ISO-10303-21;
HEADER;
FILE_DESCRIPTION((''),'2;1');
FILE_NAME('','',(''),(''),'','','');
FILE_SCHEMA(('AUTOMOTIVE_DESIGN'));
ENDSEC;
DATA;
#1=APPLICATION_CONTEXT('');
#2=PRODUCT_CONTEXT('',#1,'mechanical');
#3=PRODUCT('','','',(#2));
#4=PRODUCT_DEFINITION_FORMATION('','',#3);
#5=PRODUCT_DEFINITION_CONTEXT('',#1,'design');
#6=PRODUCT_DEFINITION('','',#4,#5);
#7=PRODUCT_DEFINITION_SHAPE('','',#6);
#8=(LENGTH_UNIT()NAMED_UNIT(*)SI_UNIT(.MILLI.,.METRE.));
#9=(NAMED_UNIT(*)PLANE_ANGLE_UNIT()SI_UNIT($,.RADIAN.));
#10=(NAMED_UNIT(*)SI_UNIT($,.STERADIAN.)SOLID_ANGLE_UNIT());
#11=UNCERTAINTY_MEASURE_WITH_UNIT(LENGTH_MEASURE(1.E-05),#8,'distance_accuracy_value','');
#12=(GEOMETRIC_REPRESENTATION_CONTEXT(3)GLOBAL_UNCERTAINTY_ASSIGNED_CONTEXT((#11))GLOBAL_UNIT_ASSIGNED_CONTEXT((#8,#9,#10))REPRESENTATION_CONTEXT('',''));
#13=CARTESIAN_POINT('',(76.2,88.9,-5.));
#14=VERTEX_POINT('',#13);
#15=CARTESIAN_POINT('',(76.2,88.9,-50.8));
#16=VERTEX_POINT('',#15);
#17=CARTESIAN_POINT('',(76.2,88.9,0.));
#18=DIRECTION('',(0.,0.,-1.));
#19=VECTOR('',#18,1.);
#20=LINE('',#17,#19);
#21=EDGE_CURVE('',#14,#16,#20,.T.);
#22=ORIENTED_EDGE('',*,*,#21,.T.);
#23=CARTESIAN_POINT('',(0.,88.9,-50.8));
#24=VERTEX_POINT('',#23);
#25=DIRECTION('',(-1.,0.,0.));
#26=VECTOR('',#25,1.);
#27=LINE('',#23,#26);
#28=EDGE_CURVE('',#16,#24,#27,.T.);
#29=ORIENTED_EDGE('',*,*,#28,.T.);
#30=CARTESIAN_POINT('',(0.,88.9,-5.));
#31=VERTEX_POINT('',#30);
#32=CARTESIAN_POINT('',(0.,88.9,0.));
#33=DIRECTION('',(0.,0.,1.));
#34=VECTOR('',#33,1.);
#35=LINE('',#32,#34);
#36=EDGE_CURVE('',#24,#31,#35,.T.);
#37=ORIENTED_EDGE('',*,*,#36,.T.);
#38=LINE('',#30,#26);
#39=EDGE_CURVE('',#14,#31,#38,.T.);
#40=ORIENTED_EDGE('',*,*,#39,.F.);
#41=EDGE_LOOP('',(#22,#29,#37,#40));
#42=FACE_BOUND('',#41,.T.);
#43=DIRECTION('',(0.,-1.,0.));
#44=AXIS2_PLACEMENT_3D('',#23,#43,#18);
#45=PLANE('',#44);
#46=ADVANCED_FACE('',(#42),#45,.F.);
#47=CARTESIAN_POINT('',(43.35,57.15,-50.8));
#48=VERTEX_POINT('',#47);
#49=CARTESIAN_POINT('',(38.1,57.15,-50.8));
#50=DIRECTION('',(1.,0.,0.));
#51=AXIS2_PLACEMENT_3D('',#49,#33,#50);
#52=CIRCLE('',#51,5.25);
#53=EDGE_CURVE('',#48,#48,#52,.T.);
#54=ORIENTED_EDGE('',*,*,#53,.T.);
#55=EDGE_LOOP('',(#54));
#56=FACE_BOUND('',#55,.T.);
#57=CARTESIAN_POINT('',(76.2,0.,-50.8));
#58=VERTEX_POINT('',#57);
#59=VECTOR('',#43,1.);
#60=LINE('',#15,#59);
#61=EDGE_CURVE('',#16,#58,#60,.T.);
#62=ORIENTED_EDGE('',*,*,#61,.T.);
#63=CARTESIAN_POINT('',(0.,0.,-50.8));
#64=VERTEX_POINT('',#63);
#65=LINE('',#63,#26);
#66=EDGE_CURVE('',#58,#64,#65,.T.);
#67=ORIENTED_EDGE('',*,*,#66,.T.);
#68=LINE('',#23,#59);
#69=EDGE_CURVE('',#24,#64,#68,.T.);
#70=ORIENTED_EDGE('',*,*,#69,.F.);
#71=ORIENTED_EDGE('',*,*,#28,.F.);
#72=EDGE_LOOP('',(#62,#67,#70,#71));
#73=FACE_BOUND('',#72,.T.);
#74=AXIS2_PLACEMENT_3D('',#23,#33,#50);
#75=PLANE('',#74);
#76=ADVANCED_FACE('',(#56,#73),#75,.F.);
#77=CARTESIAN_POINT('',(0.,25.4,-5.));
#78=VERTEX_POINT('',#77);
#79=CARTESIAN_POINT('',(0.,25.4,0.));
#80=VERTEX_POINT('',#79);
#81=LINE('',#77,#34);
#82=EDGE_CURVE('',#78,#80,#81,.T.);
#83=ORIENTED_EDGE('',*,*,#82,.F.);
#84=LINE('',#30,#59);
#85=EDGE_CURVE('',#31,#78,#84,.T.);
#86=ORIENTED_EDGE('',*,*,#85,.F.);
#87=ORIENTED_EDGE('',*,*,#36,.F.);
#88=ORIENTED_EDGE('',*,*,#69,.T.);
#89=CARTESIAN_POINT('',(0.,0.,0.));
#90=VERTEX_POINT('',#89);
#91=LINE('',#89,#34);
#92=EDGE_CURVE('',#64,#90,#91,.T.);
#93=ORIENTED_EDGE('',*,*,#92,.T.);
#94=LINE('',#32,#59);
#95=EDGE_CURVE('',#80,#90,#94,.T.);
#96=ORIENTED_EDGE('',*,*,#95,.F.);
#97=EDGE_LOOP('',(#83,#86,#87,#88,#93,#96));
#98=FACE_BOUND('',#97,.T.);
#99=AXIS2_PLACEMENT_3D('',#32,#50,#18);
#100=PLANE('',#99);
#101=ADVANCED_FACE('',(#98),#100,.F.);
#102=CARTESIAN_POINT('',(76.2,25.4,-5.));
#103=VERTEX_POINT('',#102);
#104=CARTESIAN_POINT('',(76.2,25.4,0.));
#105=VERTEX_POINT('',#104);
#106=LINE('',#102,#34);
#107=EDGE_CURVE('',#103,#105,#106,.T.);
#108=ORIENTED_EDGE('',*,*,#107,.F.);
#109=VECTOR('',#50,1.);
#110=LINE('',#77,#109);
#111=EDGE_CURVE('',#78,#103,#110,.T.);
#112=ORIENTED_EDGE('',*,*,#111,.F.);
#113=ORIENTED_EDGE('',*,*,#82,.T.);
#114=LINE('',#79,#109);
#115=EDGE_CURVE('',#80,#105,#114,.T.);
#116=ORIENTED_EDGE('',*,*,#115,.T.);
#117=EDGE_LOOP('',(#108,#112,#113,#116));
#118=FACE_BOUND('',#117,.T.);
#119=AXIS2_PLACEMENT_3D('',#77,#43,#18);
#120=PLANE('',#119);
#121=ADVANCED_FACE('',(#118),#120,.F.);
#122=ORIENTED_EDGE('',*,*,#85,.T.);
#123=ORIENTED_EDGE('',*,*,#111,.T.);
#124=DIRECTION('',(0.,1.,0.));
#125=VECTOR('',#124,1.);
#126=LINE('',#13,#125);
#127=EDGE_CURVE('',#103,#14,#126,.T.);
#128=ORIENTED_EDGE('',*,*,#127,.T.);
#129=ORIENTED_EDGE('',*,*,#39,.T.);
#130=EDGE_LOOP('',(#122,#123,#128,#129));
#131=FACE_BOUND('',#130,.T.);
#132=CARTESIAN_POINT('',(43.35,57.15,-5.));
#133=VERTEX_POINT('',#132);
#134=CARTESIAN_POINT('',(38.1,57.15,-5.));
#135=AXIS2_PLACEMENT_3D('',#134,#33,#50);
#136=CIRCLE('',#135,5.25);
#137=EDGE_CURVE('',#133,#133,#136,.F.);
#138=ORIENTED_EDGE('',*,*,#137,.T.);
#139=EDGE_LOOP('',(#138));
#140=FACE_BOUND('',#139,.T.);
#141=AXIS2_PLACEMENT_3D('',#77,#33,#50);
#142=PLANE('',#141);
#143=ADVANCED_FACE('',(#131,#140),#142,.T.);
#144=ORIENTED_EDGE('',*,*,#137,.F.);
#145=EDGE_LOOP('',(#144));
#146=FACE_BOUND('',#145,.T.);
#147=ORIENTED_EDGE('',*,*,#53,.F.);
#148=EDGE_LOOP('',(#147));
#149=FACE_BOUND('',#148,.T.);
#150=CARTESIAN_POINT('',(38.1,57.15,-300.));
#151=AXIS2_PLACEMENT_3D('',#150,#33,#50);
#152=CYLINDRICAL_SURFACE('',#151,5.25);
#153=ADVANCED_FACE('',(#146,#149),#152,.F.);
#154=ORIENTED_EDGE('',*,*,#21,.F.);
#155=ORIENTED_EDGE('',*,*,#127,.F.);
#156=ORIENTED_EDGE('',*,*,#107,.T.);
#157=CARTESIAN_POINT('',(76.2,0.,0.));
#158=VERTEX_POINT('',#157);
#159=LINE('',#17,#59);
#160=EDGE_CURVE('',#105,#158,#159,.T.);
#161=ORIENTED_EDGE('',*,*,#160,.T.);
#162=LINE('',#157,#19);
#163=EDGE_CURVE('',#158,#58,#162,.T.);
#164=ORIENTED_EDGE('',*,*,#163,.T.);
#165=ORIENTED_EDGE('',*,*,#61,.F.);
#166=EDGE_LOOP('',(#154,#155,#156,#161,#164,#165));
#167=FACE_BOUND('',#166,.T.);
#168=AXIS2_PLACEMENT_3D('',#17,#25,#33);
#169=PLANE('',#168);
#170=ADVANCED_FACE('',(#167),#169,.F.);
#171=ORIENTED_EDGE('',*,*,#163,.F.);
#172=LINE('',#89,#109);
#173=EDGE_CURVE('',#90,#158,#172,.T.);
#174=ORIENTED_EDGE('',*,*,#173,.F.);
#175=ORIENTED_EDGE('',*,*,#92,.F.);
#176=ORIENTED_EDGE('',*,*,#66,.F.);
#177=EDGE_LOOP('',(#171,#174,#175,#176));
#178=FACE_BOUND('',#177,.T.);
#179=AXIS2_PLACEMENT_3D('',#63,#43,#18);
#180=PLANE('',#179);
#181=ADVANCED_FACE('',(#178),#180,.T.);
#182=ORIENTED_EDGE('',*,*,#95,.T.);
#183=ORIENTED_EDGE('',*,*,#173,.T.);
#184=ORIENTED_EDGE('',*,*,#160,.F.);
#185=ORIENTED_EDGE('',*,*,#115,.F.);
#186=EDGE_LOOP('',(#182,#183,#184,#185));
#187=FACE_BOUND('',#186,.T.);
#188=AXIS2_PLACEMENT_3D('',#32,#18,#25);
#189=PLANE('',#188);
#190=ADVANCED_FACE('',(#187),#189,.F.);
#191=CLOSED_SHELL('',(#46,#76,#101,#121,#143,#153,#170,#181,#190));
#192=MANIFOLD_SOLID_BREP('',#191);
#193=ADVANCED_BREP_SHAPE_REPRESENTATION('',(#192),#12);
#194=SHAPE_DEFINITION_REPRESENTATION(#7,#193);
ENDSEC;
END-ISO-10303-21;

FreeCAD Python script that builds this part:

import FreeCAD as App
import Part
import Sketcher

V = App.Vector
Q = App.Units.Quantity

doc = App.newDocument("Part")
body = doc.addObject("PartDesign::Body", "Body")

sketch1 = body.newObject("Sketcher::SketchObject", "Sketch")
sketch1.AttachmentSupport = (doc.getObject("XZ_Plane"), [""])
sketch1.MapMode = "FlatFace"
sketch1.addGeometry([
    Part.LineSegment(V(0, -51, 0), V(0, 0, 0)),
    Part.LineSegment(V(0, 0, 0), V(76, 0, 0)),
    Part.LineSegment(V(76, 0, 0), V(76, -51, 0)),
    Part.LineSegment(V(76, -51, 0), V(0, -51, 0)),
], False)
sketch1.addConstraint([
    Sketcher.Constraint("Coincident", 0, 2, 1, 1),
    Sketcher.Constraint("Coincident", 1, 2, 2, 1),
    Sketcher.Constraint("Coincident", 2, 2, 3, 1),
    Sketcher.Constraint("Coincident", 3, 2, 0, 1),
    Sketcher.Constraint("Vertical", 0),
    Sketcher.Constraint("Horizontal", 1),
    Sketcher.Constraint("Vertical", 2),
    Sketcher.Constraint("Horizontal", 3),
    Sketcher.Constraint("Coincident", 0, 2, -1, 1),
    Sketcher.Constraint("DistanceX", 1, 1, 1, 2, Q("3 in")),
    Sketcher.Constraint("DistanceY", 0, 1, 0, 2, Q("2 in")),
])
pad1 = body.newObject("PartDesign::Pad", "Pad")
pad1.Profile = sketch1
pad1.Length = Q("3.5 in")
pad1.Reversed = True

sketch2 = body.newObject("Sketcher::SketchObject", "Sketch001")
sketch2.AttachmentSupport = (doc.getObject("XY_Plane"), [""])
sketch2.MapMode = "FlatFace"
sketch2.addGeometry(Part.Circle(V(38, 57, 0), V(0, 0, 1), 5), False)
sketch2.addConstraint([
    Sketcher.Constraint("DistanceX", -1, 1, 0, 3, Q("1.5 in")),
    Sketcher.Constraint("Diameter", 0, 10.5),
    Sketcher.Constraint("DistanceY", -1, 1, 0, 3, Q("2.25 in")),
])
pocket1 = body.newObject("PartDesign::Pocket", "Pocket")
pocket1.Profile = sketch2
pocket1.Length = 300

sketch3 = body.newObject("Sketcher::SketchObject", "Sketch002")
sketch3.AttachmentSupport = (doc.getObject("XY_Plane"), [""])
sketch3.MapMode = "FlatFace"
sketch3.addGeometry([
    Part.LineSegment(V(0, 89, 0), V(0, 25, 0)),
    Part.LineSegment(V(0, 25, 0), V(76, 25, 0)),
    Part.LineSegment(V(76, 25, 0), V(76, 89, 0)),
    Part.LineSegment(V(76, 89, 0), V(0, 89, 0)),
], False)
sketch3.addConstraint([
    Sketcher.Constraint("Coincident", 0, 2, 1, 1),
    Sketcher.Constraint("Coincident", 1, 2, 2, 1),
    Sketcher.Constraint("Coincident", 2, 2, 3, 1),
    Sketcher.Constraint("Coincident", 3, 2, 0, 1),
    Sketcher.Constraint("Vertical", 0),
    Sketcher.Constraint("Horizontal", 1),
    Sketcher.Constraint("Vertical", 2),
    Sketcher.Constraint("Horizontal", 3),
    Sketcher.Constraint("PointOnObject", 0, 2, -2),
    Sketcher.Constraint("DistanceX", 1, 1, 1, 2, Q("3 in")),
    Sketcher.Constraint("DistanceY", 0, 2, 0, 1, Q("2.5 in")),
    Sketcher.Constraint("DistanceY", -1, 1, 0, 2, Q("1 in")),
])
pocket2 = body.newObject("PartDesign::Pocket", "Pocket001")
pocket2.Profile = sketch3
pocket2.Length = 5

doc.recompute()
